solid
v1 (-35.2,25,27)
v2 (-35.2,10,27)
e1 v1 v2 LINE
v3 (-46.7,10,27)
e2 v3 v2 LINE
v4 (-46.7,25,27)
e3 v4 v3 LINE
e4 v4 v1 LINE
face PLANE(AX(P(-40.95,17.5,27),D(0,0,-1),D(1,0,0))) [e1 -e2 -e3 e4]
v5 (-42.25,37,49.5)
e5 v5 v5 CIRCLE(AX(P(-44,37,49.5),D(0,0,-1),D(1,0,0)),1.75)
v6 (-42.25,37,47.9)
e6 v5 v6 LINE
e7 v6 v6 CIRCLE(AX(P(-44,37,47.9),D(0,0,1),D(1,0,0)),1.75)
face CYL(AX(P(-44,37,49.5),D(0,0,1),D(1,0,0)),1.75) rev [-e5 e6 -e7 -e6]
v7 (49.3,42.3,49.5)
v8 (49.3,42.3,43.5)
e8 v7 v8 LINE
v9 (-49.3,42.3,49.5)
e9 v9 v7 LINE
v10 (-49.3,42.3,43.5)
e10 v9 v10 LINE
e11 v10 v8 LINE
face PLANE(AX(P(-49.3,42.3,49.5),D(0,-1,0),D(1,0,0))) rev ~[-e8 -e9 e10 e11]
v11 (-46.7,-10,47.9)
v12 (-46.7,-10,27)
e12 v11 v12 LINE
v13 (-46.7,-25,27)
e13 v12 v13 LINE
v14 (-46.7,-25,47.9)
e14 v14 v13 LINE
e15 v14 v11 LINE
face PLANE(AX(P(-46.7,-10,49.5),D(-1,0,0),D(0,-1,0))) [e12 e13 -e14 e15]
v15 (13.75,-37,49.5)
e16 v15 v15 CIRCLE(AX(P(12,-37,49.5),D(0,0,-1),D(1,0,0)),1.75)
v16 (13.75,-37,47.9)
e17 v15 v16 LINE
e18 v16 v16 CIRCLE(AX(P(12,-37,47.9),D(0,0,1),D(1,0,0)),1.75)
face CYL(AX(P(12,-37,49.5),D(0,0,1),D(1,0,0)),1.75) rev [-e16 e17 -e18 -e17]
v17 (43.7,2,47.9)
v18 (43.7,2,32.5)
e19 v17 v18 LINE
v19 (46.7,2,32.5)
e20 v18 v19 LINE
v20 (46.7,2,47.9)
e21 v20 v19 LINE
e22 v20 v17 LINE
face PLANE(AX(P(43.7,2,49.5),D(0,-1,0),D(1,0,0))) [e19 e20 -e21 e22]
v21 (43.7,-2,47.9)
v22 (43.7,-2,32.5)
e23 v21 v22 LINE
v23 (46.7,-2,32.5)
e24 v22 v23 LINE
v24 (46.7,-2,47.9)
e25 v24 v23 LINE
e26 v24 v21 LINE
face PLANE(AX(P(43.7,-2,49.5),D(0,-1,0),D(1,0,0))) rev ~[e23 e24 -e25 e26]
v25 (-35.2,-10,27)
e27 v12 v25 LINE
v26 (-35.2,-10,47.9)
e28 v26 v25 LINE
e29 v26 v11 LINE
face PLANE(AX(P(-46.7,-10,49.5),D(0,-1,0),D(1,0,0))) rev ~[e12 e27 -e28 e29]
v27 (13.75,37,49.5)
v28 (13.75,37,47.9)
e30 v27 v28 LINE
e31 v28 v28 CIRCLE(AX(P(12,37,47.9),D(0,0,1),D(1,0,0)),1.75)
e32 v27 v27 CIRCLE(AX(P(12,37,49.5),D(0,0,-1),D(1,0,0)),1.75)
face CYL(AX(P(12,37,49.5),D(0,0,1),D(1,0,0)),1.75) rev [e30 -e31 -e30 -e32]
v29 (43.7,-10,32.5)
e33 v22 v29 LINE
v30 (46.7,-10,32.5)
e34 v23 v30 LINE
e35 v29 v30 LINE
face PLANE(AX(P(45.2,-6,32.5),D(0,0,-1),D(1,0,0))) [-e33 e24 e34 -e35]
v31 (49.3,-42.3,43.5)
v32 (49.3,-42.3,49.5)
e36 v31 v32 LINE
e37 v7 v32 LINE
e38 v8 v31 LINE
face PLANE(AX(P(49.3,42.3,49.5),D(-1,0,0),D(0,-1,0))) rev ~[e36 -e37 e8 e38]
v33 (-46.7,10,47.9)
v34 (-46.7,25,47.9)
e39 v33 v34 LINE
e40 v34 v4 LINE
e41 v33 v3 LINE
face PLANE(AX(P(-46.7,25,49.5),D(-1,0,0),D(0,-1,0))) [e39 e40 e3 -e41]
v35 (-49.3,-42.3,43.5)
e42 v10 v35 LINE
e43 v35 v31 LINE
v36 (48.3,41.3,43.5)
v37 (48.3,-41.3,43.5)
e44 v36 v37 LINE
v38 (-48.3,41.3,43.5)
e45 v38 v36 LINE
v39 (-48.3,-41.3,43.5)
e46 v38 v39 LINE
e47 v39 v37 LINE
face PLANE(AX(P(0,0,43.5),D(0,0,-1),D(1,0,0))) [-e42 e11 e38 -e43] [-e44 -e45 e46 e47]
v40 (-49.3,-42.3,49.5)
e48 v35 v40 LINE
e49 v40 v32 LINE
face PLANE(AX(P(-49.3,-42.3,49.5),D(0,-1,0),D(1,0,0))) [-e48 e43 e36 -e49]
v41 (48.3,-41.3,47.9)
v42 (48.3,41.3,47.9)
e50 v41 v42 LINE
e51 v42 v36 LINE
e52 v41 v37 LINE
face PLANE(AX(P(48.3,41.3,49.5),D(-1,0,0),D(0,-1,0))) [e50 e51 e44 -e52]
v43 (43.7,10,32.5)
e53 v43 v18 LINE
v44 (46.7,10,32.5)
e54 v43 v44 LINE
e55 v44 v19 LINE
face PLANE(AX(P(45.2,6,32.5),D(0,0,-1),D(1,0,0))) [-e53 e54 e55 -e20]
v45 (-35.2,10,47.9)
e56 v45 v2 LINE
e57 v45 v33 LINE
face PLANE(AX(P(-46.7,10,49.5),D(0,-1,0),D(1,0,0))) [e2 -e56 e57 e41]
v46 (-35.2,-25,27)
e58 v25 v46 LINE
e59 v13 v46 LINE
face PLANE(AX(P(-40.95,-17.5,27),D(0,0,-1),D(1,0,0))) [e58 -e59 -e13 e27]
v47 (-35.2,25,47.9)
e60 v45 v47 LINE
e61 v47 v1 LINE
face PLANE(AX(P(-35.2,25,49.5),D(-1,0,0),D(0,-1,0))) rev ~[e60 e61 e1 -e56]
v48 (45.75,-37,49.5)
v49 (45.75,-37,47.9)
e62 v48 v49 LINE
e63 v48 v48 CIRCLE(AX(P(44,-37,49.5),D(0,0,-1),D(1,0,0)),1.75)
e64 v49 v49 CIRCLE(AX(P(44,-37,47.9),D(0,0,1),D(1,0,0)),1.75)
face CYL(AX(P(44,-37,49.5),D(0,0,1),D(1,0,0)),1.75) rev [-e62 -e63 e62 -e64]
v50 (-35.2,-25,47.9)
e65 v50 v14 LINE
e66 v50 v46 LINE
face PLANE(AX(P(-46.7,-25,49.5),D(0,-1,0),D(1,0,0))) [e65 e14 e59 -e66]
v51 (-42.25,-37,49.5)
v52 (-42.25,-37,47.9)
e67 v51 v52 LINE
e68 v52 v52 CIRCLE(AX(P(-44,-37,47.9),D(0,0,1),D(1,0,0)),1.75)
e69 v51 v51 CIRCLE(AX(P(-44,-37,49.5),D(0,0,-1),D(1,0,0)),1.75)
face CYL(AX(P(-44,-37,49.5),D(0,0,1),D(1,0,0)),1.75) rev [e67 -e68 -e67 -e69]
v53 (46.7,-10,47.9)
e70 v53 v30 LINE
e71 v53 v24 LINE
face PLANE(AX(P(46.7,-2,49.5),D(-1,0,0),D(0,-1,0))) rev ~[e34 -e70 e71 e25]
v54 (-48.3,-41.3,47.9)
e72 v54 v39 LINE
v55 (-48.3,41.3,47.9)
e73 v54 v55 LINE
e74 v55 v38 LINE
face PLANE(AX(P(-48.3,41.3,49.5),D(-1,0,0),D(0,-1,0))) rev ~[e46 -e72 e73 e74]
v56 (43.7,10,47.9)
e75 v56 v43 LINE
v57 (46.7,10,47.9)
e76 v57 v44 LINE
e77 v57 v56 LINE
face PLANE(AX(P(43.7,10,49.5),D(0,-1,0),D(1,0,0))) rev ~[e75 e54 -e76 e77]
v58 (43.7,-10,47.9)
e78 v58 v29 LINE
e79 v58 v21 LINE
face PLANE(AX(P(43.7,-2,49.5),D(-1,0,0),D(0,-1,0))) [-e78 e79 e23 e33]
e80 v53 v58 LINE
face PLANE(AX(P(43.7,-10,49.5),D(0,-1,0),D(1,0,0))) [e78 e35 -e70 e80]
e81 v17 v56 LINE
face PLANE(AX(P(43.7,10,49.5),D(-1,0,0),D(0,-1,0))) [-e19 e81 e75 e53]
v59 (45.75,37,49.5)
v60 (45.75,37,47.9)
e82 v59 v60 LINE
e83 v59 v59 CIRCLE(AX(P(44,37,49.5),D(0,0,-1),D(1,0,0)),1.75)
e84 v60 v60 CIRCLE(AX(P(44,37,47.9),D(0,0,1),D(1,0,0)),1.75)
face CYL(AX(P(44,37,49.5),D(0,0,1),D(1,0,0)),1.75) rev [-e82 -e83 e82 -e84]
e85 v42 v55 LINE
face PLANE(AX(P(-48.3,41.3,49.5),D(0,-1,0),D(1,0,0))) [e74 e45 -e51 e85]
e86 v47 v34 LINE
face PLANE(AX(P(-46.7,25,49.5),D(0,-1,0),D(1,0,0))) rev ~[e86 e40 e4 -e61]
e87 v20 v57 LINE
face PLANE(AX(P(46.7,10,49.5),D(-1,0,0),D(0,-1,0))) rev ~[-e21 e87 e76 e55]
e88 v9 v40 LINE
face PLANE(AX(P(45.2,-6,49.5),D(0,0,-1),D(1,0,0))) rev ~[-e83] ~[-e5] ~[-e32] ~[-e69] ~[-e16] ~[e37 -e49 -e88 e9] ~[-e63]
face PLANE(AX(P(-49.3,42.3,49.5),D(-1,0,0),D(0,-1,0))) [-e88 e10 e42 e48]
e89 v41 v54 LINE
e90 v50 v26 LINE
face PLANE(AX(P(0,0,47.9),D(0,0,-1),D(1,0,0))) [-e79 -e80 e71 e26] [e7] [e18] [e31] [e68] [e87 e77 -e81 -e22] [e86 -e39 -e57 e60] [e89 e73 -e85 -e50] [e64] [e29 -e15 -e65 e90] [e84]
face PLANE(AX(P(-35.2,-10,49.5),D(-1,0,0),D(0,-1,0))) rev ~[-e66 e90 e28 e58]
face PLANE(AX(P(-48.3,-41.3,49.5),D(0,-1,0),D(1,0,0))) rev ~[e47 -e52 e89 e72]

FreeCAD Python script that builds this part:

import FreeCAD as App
import Part
import Sketcher
from FreeCAD import Vector
Q = App.Units.Quantity


def add_polygon(sketch, points):
    """Adds a closed chain of lines whose ends are joined by coincident constraints."""
    first, n = sketch.GeometryCount, len(points)
    for a, b in zip(points, points[1:] + points[:1]):
        sketch.addGeometry(Part.LineSegment(App.Vector(*a, 0), App.Vector(*b, 0)), False)
    for i in range(n):
        sketch.addConstraint(Sketcher.Constraint("Coincident", first + i, 2, first + (i + 1) % n, 1))

doc = App.newDocument("Part")
body = doc.addObject("PartDesign::Body", "Body")

# Sketch on XY plane
sketch1 = body.newObject("Sketcher::SketchObject", "Sketch")
sketch1.AttachmentSupport = (doc.getObject("XY_Plane"), [""])
sketch1.MapMode = "FlatFace"
add_polygon(sketch1, [(-49.3, 42.3), (-49.3, -42.3), (49.3, -42.3), (49.3, 42.3)])  # lines 0-3
sketch1.addConstraint(Sketcher.Constraint("Vertical", 0))
sketch1.addConstraint(Sketcher.Constraint("Horizontal", 1))
sketch1.addConstraint(Sketcher.Constraint("Vertical", 2))
sketch1.addConstraint(Sketcher.Constraint("Horizontal", 3))
sketch1.addConstraint(Sketcher.Constraint("Symmetric", 0, 2, 2, 2, -1, 1))
sketch1.addConstraint(Sketcher.Constraint("DistanceX", 1, 1, 1, 2, Q("98.6 mm")))
sketch1.addConstraint(Sketcher.Constraint("DistanceY", 0, 2, 0, 1, Q("84.6 mm")))
pad1 = body.newObject("PartDesign::Pad", "Pad")
pad1.Profile = sketch1
pad1.Length = 1.6

# Sketch on XY plane
sketch2 = body.newObject("Sketcher::SketchObject", "Sketch001")
sketch2.AttachmentSupport = (doc.getObject("XY_Plane"), [""])
sketch2.MapMode = "FlatFace"
add_polygon(sketch2, [(-49.3, 42.3), (-49.3, -42.3), (49.3, -42.3), (49.3, 42.3)])  # lines 0-3
add_polygon(sketch2, [(48.3, -41.3), (-48.3, -41.3), (-48.3, 41.3), (48.3, 41.3)])  # lines 4-7
sketch2.addConstraint(Sketcher.Constraint("Vertical", 0))
sketch2.addConstraint(Sketcher.Constraint("Horizontal", 1))
sketch2.addConstraint(Sketcher.Constraint("Vertical", 2))
sketch2.addConstraint(Sketcher.Constraint("Horizontal", 3))
sketch2.addConstraint(Sketcher.Constraint("Horizontal", 4))
sketch2.addConstraint(Sketcher.Constraint("Vertical", 5))
sketch2.addConstraint(Sketcher.Constraint("Horizontal", 6))
sketch2.addConstraint(Sketcher.Constraint("Vertical", 7))
sketch2.addConstraint(Sketcher.Constraint("Symmetric", 0, 2, 2, 2, -1, 1))
sketch2.addConstraint(Sketcher.Constraint("Symmetric", 4, 2, 6, 2, -1, 1))
sketch2.addConstraint(Sketcher.Constraint("DistanceX", 1, 1, 1, 2, Q("98.6 mm")))
sketch2.addConstraint(Sketcher.Constraint("DistanceX", 4, 2, 4, 1, Q("96.6 mm")))
sketch2.addConstraint(Sketcher.Constraint("DistanceY", 0, 2, 0, 1, Q("84.6 mm")))
sketch2.addConstraint(Sketcher.Constraint("DistanceY", 5, 1, 5, 2, Q("82.6 mm")))
pad2 = body.newObject("PartDesign::Pad", "Pad001")
pad2.Profile = sketch2
pad2.Length = 6

# Sketch on XY plane
sketch3 = body.newObject("Sketcher::SketchObject", "Sketch002")
sketch3.AttachmentSupport = (doc.getObject("XY_Plane"), [""])
sketch3.MapMode = "FlatFace"
add_polygon(sketch3, [(-46.7, 25), (-46.7, 10), (-35.2, 10), (-35.2, 25)])  # lines 0-3
add_polygon(sketch3, [(-46.7, -10), (-46.7, -25), (-35.2, -25), (-35.2, -10)])  # lines 4-7
sketch3.addConstraint(Sketcher.Constraint("Vertical", 0))
sketch3.addConstraint(Sketcher.Constraint("Horizontal", 1))
sketch3.addConstraint(Sketcher.Constraint("Vertical", 2))
sketch3.addConstraint(Sketcher.Constraint("Horizontal", 3))
sketch3.addConstraint(Sketcher.Constraint("Vertical", 4))
sketch3.addConstraint(Sketcher.Constraint("Horizontal", 5))
sketch3.addConstraint(Sketcher.Constraint("Vertical", 6))
sketch3.addConstraint(Sketcher.Constraint("Horizontal", 7))
sketch3.addConstraint(Sketcher.Constraint("Symmetric", 3, 2, 4, 2, -1))
sketch3.addConstraint(Sketcher.Constraint("Symmetric", 1, 2, 6, 2, -1))
sketch3.addConstraint(Sketcher.Constraint("DistanceY", 0, 2, 0, 1, Q("15 mm")))
sketch3.addConstraint(Sketcher.Constraint("DistanceX", 1, 1, 1, 2, Q("11.5 mm")))
sketch3.addConstraint(Sketcher.Constraint("DistanceY", -1, 1, 0, 2, Q("10 mm")))
sketch3.addConstraint(Sketcher.Constraint("DistanceX", 0, 2, -1, 1, Q("46.7 mm")))
pad3 = body.newObject("PartDesign::Pad", "Pad002")
pad3.Profile = sketch3
pad3.Length = 22.5

# Sketch on XY plane
sketch4 = body.newObject("Sketcher::SketchObject", "Sketch003")
sketch4.AttachmentSupport = (doc.getObject("XY_Plane"), [""])
sketch4.MapMode = "FlatFace"
add_polygon(sketch4, [(43.7, 10), (43.7, 2), (46.7, 2), (46.7, 10)])  # lines 0-3
add_polygon(sketch4, [(43.7, -2), (43.7, -10), (46.7, -10), (46.7, -2)])  # lines 4-7
sketch4.addConstraint(Sketcher.Constraint("Vertical", 0))
sketch4.addConstraint(Sketcher.Constraint("Horizontal", 1))
sketch4.addConstraint(Sketcher.Constraint("Vertical", 2))
sketch4.addConstraint(Sketcher.Constraint("Horizontal", 3))
sketch4.addConstraint(Sketcher.Constraint("Vertical", 4))
sketch4.addConstraint(Sketcher.Constraint("Horizontal", 5))
sketch4.addConstraint(Sketcher.Constraint("Vertical", 6))
sketch4.addConstraint(Sketcher.Constraint("Horizontal", 7))
sketch4.addConstraint(Sketcher.Constraint("Symmetric", 3, 2, 4, 2, -1))
sketch4.addConstraint(Sketcher.Constraint("Symmetric", 1, 2, 6, 2, -1))
sketch4.addConstraint(Sketcher.Constraint("DistanceX", 1, 1, 1, 2, Q("3 mm")))
sketch4.addConstraint(Sketcher.Constraint("DistanceY", 0, 2, 0, 1, Q("8 mm")))
sketch4.addConstraint(Sketcher.Constraint("DistanceY", -1, 1, 0, 2, Q("2 mm")))
sketch4.addConstraint(Sketcher.Constraint("DistanceX", -1, 1, 0, 2, Q("43.7 mm")))
pad4 = body.newObject("PartDesign::Pad", "Pad003")
pad4.Profile = sketch4
pad4.Length = 17

# Sketch on XY plane
sketch5 = body.newObject("Sketcher::SketchObject", "Sketch004")
sketch5.AttachmentSupport = (doc.getObject("XY_Plane"), [""])
sketch5.MapMode = "FlatFace"
sketch5.addGeometry(Part.Circle(Vector(-44, 37, 0), Vector(0, 0, 1), 1.75), False)
sketch5.addGeometry(Part.Circle(Vector(12, 37, 0), Vector(0, 0, 1), 1.75), False)
sketch5.addGeometry(Part.Circle(Vector(44, 37, 0), Vector(0, 0, 1), 1.75), False)
sketch5.addGeometry(Part.Circle(Vector(44, -37, 0), Vector(0, 0, 1), 1.75), False)
sketch5.addGeometry(Part.Circle(Vector(12, -37, 0), Vector(0, 0, 1), 1.75), False)
sketch5.addGeometry(Part.Circle(Vector(-44, -37, 0), Vector(0, 0, 1), 1.75), False)
sketch5.addConstraint(Sketcher.Constraint("Equal", 0, 1))
sketch5.addConstraint(Sketcher.Constraint("Equal", 1, 2))
sketch5.addConstraint(Sketcher.Constraint("Equal", 2, 3))
sketch5.addConstraint(Sketcher.Constraint("Equal", 3, 4))
sketch5.addConstraint(Sketcher.Constraint("Equal", 4, 5))
sketch5.addConstraint(Sketcher.Constraint("Symmetric", 0, 3, 3, 3, -1, 1))
sketch5.addConstraint(Sketcher.Constraint("Symmetric", 2, 3, 5, 3, -1, 1))
sketch5.addConstraint(Sketcher.Constraint("Symmetric", 0, 3, 2, 3, -2))
sketch5.addConstraint(Sketcher.Constraint("Symmetric", 1, 3, 4, 3, -1))
sketch5.addConstraint(Sketcher.Constraint("Horizontal", 0, 3, 1, 3))
sketch5.addConstraint(Sketcher.Constraint("Diameter", 0, Q("3.5 mm")))
sketch5.addConstraint(Sketcher.Constraint("DistanceX", 0, 3, -1, 1, Q("44 mm")))
sketch5.addConstraint(Sketcher.Constraint("DistanceY", -1, 1, 0, 3, Q("37 mm")))
sketch5.addConstraint(Sketcher.Constraint("DistanceX", -1, 1, 1, 3, Q("12 mm")))
pocket1 = body.newObject("PartDesign::Pocket", "Pocket")
pocket1.Profile = sketch5
pocket1.Length = 5
pocket1.Reversed = True
body2 = doc.addObject("PartDesign::Body", "Body001")
doc.recompute()

body.Placement = App.Placement(Vector(0, 0, 49.5), App.Rotation(Vector(1, 0, 0), 180))
boolean = body2.newObject("PartDesign::Boolean", "Boolean")
boolean.Type = "Fuse"
boolean.addObjects([body])

doc.recompute()
